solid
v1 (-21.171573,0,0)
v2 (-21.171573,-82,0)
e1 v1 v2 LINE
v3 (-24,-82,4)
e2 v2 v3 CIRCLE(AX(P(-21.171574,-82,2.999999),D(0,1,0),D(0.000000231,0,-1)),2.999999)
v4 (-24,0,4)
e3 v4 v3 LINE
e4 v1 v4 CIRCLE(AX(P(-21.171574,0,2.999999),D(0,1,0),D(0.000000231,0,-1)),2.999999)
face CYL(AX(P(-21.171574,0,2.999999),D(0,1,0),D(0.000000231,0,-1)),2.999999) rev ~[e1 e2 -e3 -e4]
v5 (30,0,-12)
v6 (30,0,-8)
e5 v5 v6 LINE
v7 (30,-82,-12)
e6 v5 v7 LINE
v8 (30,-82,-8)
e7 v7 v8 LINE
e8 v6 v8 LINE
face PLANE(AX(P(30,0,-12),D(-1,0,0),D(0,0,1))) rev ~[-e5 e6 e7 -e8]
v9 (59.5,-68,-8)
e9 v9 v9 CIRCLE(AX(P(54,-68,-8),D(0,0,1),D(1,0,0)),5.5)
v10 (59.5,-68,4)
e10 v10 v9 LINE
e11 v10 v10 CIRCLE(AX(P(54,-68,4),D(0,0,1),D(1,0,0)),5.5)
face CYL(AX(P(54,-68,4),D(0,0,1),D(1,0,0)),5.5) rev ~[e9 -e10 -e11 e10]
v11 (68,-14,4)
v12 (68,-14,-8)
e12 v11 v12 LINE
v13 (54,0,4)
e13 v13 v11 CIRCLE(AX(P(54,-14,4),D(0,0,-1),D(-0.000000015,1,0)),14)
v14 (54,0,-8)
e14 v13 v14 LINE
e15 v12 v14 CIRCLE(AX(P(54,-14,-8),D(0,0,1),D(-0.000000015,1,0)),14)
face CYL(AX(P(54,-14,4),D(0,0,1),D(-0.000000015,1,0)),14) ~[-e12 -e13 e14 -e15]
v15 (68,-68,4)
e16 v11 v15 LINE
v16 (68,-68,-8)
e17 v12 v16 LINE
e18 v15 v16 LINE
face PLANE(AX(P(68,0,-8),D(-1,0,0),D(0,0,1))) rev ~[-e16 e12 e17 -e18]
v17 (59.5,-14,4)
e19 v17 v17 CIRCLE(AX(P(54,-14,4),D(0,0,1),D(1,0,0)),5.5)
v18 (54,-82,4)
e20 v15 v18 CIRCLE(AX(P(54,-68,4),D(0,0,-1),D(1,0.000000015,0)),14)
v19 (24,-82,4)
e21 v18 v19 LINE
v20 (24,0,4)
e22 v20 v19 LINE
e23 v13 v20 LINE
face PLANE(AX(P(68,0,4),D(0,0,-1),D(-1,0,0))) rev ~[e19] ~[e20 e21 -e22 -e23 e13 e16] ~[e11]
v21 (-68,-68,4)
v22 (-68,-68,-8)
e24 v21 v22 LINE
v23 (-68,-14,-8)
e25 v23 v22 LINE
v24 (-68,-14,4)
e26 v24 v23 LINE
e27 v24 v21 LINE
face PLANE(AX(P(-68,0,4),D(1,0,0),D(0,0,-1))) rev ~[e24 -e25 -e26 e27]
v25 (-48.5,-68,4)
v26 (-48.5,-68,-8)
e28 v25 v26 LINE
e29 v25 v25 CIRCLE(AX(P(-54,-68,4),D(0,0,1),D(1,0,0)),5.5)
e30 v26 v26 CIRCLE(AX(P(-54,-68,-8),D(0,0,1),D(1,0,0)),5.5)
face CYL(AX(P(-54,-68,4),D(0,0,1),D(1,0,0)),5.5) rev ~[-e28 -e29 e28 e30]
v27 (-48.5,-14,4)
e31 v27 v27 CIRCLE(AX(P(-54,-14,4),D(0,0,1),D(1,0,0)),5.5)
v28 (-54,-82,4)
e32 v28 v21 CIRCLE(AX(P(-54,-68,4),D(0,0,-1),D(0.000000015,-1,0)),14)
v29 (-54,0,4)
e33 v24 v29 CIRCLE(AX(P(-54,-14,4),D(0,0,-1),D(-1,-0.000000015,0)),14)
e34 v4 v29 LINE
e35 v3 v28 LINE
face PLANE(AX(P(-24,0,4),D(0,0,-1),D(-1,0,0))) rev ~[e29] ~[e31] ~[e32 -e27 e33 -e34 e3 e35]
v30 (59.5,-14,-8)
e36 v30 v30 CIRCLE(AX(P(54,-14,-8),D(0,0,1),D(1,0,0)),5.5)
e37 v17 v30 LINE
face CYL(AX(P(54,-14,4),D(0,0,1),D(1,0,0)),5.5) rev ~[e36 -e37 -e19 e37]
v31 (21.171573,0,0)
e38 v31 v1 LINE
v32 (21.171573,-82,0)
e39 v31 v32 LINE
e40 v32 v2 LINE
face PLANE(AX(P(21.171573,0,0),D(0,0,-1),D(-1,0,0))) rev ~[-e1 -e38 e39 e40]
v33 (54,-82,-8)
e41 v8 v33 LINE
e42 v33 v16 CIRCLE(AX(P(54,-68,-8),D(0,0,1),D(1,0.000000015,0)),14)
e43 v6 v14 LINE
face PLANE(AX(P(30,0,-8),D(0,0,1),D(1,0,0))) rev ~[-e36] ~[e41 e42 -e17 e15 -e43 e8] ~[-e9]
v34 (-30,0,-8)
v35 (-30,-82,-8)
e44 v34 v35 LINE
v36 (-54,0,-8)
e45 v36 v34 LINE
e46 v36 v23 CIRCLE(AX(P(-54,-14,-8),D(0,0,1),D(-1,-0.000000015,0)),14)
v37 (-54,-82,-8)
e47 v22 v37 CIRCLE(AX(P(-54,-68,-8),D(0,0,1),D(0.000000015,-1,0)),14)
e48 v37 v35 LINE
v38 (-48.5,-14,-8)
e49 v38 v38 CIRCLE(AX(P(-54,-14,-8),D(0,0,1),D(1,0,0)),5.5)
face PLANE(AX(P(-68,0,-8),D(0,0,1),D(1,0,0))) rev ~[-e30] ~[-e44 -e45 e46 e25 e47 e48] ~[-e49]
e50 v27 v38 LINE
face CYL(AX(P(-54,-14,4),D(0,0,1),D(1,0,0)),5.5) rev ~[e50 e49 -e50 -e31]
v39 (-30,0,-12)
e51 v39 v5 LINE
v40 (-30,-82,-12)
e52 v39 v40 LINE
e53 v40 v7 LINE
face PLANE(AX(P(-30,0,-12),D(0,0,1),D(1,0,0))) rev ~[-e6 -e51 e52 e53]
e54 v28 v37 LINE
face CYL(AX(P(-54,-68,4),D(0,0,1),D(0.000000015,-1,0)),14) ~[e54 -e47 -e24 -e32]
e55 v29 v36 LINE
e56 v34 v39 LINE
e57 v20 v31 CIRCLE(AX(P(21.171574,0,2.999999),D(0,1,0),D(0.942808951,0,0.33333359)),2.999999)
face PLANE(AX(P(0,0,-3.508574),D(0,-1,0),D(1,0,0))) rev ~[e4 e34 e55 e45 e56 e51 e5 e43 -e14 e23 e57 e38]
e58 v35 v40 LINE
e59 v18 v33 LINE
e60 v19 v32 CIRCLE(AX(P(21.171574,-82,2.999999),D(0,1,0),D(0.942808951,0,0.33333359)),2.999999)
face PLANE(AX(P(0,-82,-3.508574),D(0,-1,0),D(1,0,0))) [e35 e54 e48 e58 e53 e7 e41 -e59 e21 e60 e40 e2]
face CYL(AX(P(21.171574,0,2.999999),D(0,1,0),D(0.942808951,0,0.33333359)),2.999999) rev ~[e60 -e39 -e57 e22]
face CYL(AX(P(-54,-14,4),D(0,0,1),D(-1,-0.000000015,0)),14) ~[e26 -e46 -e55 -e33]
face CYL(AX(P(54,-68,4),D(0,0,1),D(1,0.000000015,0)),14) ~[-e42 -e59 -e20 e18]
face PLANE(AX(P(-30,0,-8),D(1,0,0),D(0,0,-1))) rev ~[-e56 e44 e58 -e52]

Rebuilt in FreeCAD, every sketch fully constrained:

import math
import FreeCAD as App
import Part
import Sketcher
Q = App.Units.Quantity

doc = App.newDocument("Part")
body = doc.addObject("PartDesign::Body", "Body")

sketch1 = body.newObject("Sketcher::SketchObject", "Sketch")
sketch1.AttachmentSupport = (doc.getObject("XZ_Plane"), [""])
sketch1.MapMode = "FlatFace"
sketch1.addGeometry([
    Part.LineSegment(App.Vector(21.2, 0, 0), App.Vector(-21.2, 0, 0)),
    Part.ArcOfCircle(Part.Circle(App.Vector(-21.2, 3, 0), App.Vector(0, 0, 1), 3), math.radians(161), math.radians(270)),
    Part.LineSegment(App.Vector(-24, 4, 0), App.Vector(-68, 4, 0)),
    Part.LineSegment(App.Vector(-68, 4, 0), App.Vector(-68, -8, 0)),
    Part.LineSegment(App.Vector(-68, -8, 0), App.Vector(-30, -8, 0)),
    Part.LineSegment(App.Vector(-30, -8, 0), App.Vector(-30, -12, 0)),
    Part.LineSegment(App.Vector(-30, -12, 0), App.Vector(30, -12, 0)),
    Part.LineSegment(App.Vector(30, -12, 0), App.Vector(30, -8, 0)),
    Part.LineSegment(App.Vector(30, -8, 0), App.Vector(68, -8, 0)),
    Part.LineSegment(App.Vector(68, -8, 0), App.Vector(68, 4, 0)),
    Part.LineSegment(App.Vector(68, 4, 0), App.Vector(24, 4, 0)),
    Part.ArcOfCircle(Part.Circle(App.Vector(21.2, 3, 0), App.Vector(0, 0, 1), 3), math.radians(-90), math.radians(19)),
], False)
sketch1.addConstraint([
    Sketcher.Constraint("Tangent", 0, 2, 1, 2),
    Sketcher.Constraint("Coincident", 1, 1, 2, 1),
    Sketcher.Constraint("Coincident", 2, 2, 3, 1),
    Sketcher.Constraint("Coincident", 3, 2, 4, 1),
    Sketcher.Constraint("Coincident", 4, 2, 5, 1),
    Sketcher.Constraint("Coincident", 5, 2, 6, 1),
    Sketcher.Constraint("Coincident", 6, 2, 7, 1),
    Sketcher.Constraint("Coincident", 7, 2, 8, 1),
    Sketcher.Constraint("Coincident", 8, 2, 9, 1),
    Sketcher.Constraint("Coincident", 9, 2, 10, 1),
    Sketcher.Constraint("Coincident", 10, 2, 11, 2),
    Sketcher.Constraint("Tangent", 11, 1, 0, 1),
    Sketcher.Constraint("Horizontal", 0),
    Sketcher.Constraint("Horizontal", 2),
    Sketcher.Constraint("Vertical", 3),
    Sketcher.Constraint("Horizontal", 4),
    Sketcher.Constraint("Vertical", 5),
    Sketcher.Constraint("Horizontal", 6),
    Sketcher.Constraint("Vertical", 7),
    Sketcher.Constraint("Horizontal", 8),
    Sketcher.Constraint("Vertical", 9),
    Sketcher.Constraint("Horizontal", 10),
    Sketcher.Constraint("Equal", 1, 11),
    Sketcher.Constraint("Symmetric", 0, 2, 11, 1, -1, 1),
    Sketcher.Constraint("Symmetric", 4, 2, 7, 2, -2),
    Sketcher.Constraint("Symmetric", 2, 2, 9, 2, -2),
    Sketcher.Constraint("Radius", 1, Q("2.999999 mm")),
    Sketcher.Constraint("DistanceX", 2, 2, 2, 1, Q("44 mm")),
    Sketcher.Constraint("DistanceX", 4, 1, 4, 2, Q("38 mm")),
    Sketcher.Constraint("DistanceX", 6, 1, 6, 2, Q("60 mm")),
    Sketcher.Constraint("DistanceY", 3, 2, 3, 1, Q("12 mm")),
    Sketcher.Constraint("DistanceY", 5, 2, 5, 1, Q("4 mm")),
    Sketcher.Constraint("DistanceY", -1, 1, 1, 1, Q("4 mm")),
])
pad1 = body.newObject("PartDesign::Pad", "Pad")
pad1.Profile = sketch1
pad1.Length = 82

sketch2 = body.newObject("Sketcher::SketchObject", "Sketch001")
sketch2.AttachmentSupport = (doc.getObject("XY_Plane"), [""])
sketch2.MapMode = "FlatFace"
sketch2.AttachmentOffset = App.Placement(App.Vector(0, 0, 4), App.Rotation())
sketch2.addGeometry([
    Part.ArcOfCircle(Part.Circle(App.Vector(-54, -14, 0), App.Vector(0, 0, 1), 14), math.radians(90), math.radians(180)),
    Part.LineSegment(App.Vector(-54, 0, 0), App.Vector(-68, 0, 0)),
    Part.LineSegment(App.Vector(-68, 0, 0), App.Vector(-68, -14, 0)),
    Part.LineSegment(App.Vector(-68, -82, 0), App.Vector(-54, -82, 0)),
    Part.ArcOfCircle(Part.Circle(App.Vector(-54, -68, 0), App.Vector(0, 0, 1), 14), math.radians(180), math.radians(270)),
    Part.LineSegment(App.Vector(-68, -68, 0), App.Vector(-68, -82, 0)),
    Part.LineSegment(App.Vector(68, 0, 0), App.Vector(54, 0, 0)),
    Part.ArcOfCircle(Part.Circle(App.Vector(54, -14, 0), App.Vector(0, 0, 1), 14), math.radians(0), math.radians(90)),
    Part.LineSegment(App.Vector(68, -14, 0), App.Vector(68, 0, 0)),
    Part.ArcOfCircle(Part.Circle(App.Vector(54, -68, 0), App.Vector(0, 0, 1), 14), math.radians(-90), math.radians(0)),
    Part.LineSegment(App.Vector(54, -82, 0), App.Vector(68, -82, 0)),
    Part.LineSegment(App.Vector(68, -82, 0), App.Vector(68, -68, 0)),
], False)
sketch2.addConstraint([
    Sketcher.Constraint("Tangent", 0, 1, 1, 1),
    Sketcher.Constraint("Coincident", 1, 2, 2, 1),
    Sketcher.Constraint("Tangent", 2, 2, 0, 2),
    Sketcher.Constraint("Tangent", 3, 2, 4, 2),
    Sketcher.Constraint("Tangent", 4, 1, 5, 1),
    Sketcher.Constraint("Coincident", 5, 2, 3, 1),
    Sketcher.Constraint("Tangent", 6, 2, 7, 2),
    Sketcher.Constraint("Tangent", 7, 1, 8, 1),
    Sketcher.Constraint("Coincident", 8, 2, 6, 1),
    Sketcher.Constraint("Tangent", 9, 1, 10, 1),
    Sketcher.Constraint("Coincident", 10, 2, 11, 1),
    Sketcher.Constraint("Tangent", 11, 2, 9, 2),
    Sketcher.Constraint("Horizontal", 1),
    Sketcher.Constraint("Vertical", 2),
    Sketcher.Constraint("Horizontal", 3),
    Sketcher.Constraint("Vertical", 5),
    Sketcher.Constraint("Horizontal", 6),
    Sketcher.Constraint("Vertical", 8),
    Sketcher.Constraint("Horizontal", 10),
    Sketcher.Constraint("Vertical", 11),
    Sketcher.Constraint("Equal", 0, 4),
    Sketcher.Constraint("Equal", 4, 7),
    Sketcher.Constraint("Equal", 7, 9),
    Sketcher.Constraint("Symmetric", 0, 1, 6, 2, -1, 1),
    Sketcher.Constraint("Symmetric", 4, 3, 9, 3, -2),
    Sketcher.Constraint("PointOnObject", 0, 1, -1),
    Sketcher.Constraint("Vertical", 0, 3, 4, 3),
    Sketcher.Constraint("Radius", 0, Q("14 mm")),
    Sketcher.Constraint("DistanceX", 0, 3, -1, 1, Q("54 mm")),
    Sketcher.Constraint("DistanceY", 4, 3, -1, 1, Q("68 mm")),
])
pocket1 = body.newObject("PartDesign::Pocket", "Pocket")
pocket1.Profile = sketch2
pocket1.Length = 25

sketch3 = body.newObject("Sketcher::SketchObject", "Sketch002")
sketch3.AttachmentSupport = (doc.getObject("XY_Plane"), [""])
sketch3.MapMode = "FlatFace"
sketch3.AttachmentOffset = App.Placement(App.Vector(0, 0, 4), App.Rotation())
sketch3.addGeometry([
    Part.Circle(App.Vector(-54, -14, 0), App.Vector(0, 0, 1), 6),
    Part.Circle(App.Vector(-54, -68, 0), App.Vector(0, 0, 1), 6),
    Part.Circle(App.Vector(54, -14, 0), App.Vector(0, 0, 1), 6),
    Part.Circle(App.Vector(54, -68, 0), App.Vector(0, 0, 1), 6),
], False)
sketch3.addConstraint([
    Sketcher.Constraint("Equal", 0, 1),
    Sketcher.Constraint("Equal", 1, 2),
    Sketcher.Constraint("Equal", 2, 3),
    Sketcher.Constraint("Symmetric", 0, 3, 2, 3, -2),
    Sketcher.Constraint("Symmetric", 1, 3, 3, 3, -2),
    Sketcher.Constraint("Vertical", 0, 3, 1, 3),
    Sketcher.Constraint("Diameter", 0, Q("11 mm")),
    Sketcher.Constraint("DistanceX", 0, 3, -1, 1, Q("54 mm")),
    Sketcher.Constraint("DistanceY", 0, 3, -1, 1, Q("14 mm")),
    Sketcher.Constraint("DistanceY", 1, 3, -1, 1, Q("68 mm")),
])
pocket2 = body.newObject("PartDesign::Pocket", "Pocket001")
pocket2.Profile = sketch3
pocket2.Length = 25

doc.recompute()
